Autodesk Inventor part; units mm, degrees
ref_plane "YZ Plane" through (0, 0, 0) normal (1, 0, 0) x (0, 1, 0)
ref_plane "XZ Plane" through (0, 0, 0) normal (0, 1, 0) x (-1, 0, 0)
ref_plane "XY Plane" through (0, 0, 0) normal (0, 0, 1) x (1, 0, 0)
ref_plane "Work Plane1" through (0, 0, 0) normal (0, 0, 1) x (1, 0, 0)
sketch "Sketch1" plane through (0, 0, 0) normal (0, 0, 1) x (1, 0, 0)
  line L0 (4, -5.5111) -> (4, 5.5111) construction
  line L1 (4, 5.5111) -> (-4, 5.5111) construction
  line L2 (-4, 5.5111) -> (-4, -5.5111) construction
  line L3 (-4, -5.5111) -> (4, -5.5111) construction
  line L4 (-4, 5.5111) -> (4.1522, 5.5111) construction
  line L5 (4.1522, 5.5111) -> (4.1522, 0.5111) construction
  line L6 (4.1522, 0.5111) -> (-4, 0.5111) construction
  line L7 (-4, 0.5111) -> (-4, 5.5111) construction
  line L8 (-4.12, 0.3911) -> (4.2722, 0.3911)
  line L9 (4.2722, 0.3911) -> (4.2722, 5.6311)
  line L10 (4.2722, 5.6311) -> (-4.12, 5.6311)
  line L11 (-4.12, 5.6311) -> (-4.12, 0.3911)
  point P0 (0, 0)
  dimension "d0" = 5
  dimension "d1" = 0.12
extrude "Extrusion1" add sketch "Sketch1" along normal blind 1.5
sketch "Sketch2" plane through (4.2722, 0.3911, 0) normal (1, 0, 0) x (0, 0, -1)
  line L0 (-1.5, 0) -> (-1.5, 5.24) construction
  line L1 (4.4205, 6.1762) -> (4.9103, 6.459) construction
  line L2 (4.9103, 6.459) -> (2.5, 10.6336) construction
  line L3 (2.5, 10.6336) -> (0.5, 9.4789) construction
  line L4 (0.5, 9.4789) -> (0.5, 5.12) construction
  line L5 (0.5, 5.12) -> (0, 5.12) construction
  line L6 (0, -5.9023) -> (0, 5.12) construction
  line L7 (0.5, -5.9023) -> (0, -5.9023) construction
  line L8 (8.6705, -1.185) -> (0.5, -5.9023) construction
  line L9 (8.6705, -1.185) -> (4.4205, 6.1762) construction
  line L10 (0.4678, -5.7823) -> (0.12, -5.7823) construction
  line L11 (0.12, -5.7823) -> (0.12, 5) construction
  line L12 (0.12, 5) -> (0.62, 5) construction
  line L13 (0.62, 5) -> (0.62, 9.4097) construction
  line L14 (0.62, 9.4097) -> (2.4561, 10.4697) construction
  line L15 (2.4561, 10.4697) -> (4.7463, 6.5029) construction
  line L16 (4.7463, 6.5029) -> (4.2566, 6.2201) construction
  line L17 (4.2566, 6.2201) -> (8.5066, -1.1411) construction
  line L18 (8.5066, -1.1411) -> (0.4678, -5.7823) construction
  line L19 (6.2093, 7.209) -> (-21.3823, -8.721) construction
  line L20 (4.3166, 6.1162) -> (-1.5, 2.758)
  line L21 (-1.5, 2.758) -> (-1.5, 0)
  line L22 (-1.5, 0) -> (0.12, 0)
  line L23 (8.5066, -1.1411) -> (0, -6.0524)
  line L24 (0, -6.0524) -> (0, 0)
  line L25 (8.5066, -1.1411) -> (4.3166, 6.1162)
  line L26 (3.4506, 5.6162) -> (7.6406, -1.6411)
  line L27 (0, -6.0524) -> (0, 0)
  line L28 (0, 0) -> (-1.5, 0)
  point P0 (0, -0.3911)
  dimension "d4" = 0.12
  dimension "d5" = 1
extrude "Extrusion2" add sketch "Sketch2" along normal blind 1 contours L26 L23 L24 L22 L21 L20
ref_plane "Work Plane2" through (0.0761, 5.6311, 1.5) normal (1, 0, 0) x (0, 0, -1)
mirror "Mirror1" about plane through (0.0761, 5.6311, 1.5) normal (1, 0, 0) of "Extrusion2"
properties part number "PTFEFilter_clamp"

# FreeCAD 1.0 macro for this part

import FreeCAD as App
import Part
import Sketcher
from FreeCAD import Vector
Q = App.Units.Quantity


def add_polygon(sketch, points):
    """Adds a closed chain of lines whose ends are joined by coincident constraints."""
    first, n = sketch.GeometryCount, len(points)
    for a, b in zip(points, points[1:] + points[:1]):
        sketch.addGeometry(Part.LineSegment(App.Vector(*a, 0), App.Vector(*b, 0)), False)
    for i in range(n):
        sketch.addConstraint(Sketcher.Constraint("Coincident", first + i, 2, first + (i + 1) % n, 1))

doc = App.newDocument("Part")
params = doc.addObject("Spreadsheet::Sheet", "Params")
for row, (alias, value) in enumerate([
    ("sketch1_height", "5.24 mm"),
    ("pad1_length", "1.5 mm"),
    ("sketch2_height", "1.5 mm"),
    ("sketch2_length", "8.38 mm"),
    ("pad2_length", "1 mm"),
], start=1):
    params.set(f"A{row}", alias)
    params.set(f"B{row}", "=" + value)
    params.setAlias(f"B{row}", alias)

body = doc.addObject("PartDesign::Body", "Body")

# Sketch on XY plane
sketch1 = body.newObject("Sketcher::SketchObject", "Sketch")
sketch1.AttachmentSupport = (doc.getObject("XY_Plane"), [""])
sketch1.MapMode = "FlatFace"
add_polygon(sketch1, [(-4.12, 5.6311), (-4.12, 0.3911), (4.2722, 0.3911), (4.2722, 5.6311)])  # lines 0-3
sketch1.addConstraint(Sketcher.Constraint("Vertical", 0))
sketch1.addConstraint(Sketcher.Constraint("Horizontal", 1))
sketch1.addConstraint(Sketcher.Constraint("Vertical", 2))
sketch1.addConstraint(Sketcher.Constraint("Horizontal", 3))
sketch1.addConstraint(Sketcher.Constraint("DistanceY", 0, 2, 0, 1, Q("5.24 mm")))
sketch1.addConstraint(Sketcher.Constraint("DistanceX", 0, 2, -1, 1, Q("4.12 mm")))
sketch1.addConstraint(Sketcher.Constraint("DistanceX", 1, 1, 1, 2, Q("8.3922 mm")))
sketch1.addConstraint(Sketcher.Constraint("DistanceY", -1, 1, 0, 2, Q("0.391 mm")))
sketch1.setExpression("Constraints[8]", "Params.sketch1_height")
pad1 = body.newObject("PartDesign::Pad", "Pad")
pad1.Profile = sketch1
pad1.setExpression("Length", "Params.pad1_length")

# Sketch on YZ plane
sketch2 = body.newObject("Sketcher::SketchObject", "Sketch001")
sketch2.AttachmentSupport = (doc.getObject("YZ_Plane"), [""])
sketch2.MapMode = "FlatFace"
sketch2.AttachmentOffset = App.Placement(Vector(0, 0, 4.2722), App.Rotation())
add_polygon(sketch2, [(-1.25, -7.6406), (6.007313, -3.450593), (3.1491, 1.5), (0.3911, 1.5), (0.3911, 0), (-5.6613, 0)])  # lines 0-5
sketch2.addConstraint(Sketcher.Constraint("Horizontal", 2))
sketch2.addConstraint(Sketcher.Constraint("Vertical", 3))
sketch2.addConstraint(Sketcher.Constraint("Horizontal", 4))
sketch2.addConstraint(Sketcher.Constraint("PointOnObject", 3, 2, -1))
sketch2.addConstraint(Sketcher.Constraint("Perpendicular", 0, 1))
sketch2.addConstraint(Sketcher.Constraint("Parallel", 1, 5))
sketch2.addConstraint(Sketcher.Constraint("Angle", 0, Q("30 deg")))
sketch2.addConstraint(Sketcher.Constraint("DistanceY", 3, 2, 3, 1, Q("1.5 mm")))
sketch2.addConstraint(Sketcher.Constraint("Distance", 0, Q("8.38 mm")))
sketch2.addConstraint(Sketcher.Constraint("DistanceX", 2, 2, 2, 1, Q("2.758 mm")))
sketch2.addConstraint(Sketcher.Constraint("DistanceX", 5, 2, -1, 1, Q("1.25 mm")))
sketch2.addConstraint(Sketcher.Constraint("DistanceX", -1, 1, 1, 2, Q("3.149 mm")))
sketch2.setExpression("Constraints[13]", "Params.sketch2_height")
sketch2.setExpression("Constraints[14]", "Params.sketch2_length")
pad2 = body.newObject("PartDesign::Pad", "Pad001")
pad2.Profile = sketch2
pad2.setExpression("Length", "Params.pad2_length")
doc.recompute()

datumplane = body.newObject("PartDesign::Plane", "DatumPlane")
datumplane.AttachmentSupport = (doc.getObject("YZ_Plane"), [""])
datumplane.MapMode = "FlatFace"
datumplane.AttachmentOffset = App.Placement(Vector(0, 0, 0.0761), App.Rotation())
mirrored = body.newObject("PartDesign::Mirrored", "Mirrored")
mirrored.Originals = [pad2]
mirrored.MirrorPlane = (datumplane, [""])
body.Tip = mirrored

doc.recompute()
